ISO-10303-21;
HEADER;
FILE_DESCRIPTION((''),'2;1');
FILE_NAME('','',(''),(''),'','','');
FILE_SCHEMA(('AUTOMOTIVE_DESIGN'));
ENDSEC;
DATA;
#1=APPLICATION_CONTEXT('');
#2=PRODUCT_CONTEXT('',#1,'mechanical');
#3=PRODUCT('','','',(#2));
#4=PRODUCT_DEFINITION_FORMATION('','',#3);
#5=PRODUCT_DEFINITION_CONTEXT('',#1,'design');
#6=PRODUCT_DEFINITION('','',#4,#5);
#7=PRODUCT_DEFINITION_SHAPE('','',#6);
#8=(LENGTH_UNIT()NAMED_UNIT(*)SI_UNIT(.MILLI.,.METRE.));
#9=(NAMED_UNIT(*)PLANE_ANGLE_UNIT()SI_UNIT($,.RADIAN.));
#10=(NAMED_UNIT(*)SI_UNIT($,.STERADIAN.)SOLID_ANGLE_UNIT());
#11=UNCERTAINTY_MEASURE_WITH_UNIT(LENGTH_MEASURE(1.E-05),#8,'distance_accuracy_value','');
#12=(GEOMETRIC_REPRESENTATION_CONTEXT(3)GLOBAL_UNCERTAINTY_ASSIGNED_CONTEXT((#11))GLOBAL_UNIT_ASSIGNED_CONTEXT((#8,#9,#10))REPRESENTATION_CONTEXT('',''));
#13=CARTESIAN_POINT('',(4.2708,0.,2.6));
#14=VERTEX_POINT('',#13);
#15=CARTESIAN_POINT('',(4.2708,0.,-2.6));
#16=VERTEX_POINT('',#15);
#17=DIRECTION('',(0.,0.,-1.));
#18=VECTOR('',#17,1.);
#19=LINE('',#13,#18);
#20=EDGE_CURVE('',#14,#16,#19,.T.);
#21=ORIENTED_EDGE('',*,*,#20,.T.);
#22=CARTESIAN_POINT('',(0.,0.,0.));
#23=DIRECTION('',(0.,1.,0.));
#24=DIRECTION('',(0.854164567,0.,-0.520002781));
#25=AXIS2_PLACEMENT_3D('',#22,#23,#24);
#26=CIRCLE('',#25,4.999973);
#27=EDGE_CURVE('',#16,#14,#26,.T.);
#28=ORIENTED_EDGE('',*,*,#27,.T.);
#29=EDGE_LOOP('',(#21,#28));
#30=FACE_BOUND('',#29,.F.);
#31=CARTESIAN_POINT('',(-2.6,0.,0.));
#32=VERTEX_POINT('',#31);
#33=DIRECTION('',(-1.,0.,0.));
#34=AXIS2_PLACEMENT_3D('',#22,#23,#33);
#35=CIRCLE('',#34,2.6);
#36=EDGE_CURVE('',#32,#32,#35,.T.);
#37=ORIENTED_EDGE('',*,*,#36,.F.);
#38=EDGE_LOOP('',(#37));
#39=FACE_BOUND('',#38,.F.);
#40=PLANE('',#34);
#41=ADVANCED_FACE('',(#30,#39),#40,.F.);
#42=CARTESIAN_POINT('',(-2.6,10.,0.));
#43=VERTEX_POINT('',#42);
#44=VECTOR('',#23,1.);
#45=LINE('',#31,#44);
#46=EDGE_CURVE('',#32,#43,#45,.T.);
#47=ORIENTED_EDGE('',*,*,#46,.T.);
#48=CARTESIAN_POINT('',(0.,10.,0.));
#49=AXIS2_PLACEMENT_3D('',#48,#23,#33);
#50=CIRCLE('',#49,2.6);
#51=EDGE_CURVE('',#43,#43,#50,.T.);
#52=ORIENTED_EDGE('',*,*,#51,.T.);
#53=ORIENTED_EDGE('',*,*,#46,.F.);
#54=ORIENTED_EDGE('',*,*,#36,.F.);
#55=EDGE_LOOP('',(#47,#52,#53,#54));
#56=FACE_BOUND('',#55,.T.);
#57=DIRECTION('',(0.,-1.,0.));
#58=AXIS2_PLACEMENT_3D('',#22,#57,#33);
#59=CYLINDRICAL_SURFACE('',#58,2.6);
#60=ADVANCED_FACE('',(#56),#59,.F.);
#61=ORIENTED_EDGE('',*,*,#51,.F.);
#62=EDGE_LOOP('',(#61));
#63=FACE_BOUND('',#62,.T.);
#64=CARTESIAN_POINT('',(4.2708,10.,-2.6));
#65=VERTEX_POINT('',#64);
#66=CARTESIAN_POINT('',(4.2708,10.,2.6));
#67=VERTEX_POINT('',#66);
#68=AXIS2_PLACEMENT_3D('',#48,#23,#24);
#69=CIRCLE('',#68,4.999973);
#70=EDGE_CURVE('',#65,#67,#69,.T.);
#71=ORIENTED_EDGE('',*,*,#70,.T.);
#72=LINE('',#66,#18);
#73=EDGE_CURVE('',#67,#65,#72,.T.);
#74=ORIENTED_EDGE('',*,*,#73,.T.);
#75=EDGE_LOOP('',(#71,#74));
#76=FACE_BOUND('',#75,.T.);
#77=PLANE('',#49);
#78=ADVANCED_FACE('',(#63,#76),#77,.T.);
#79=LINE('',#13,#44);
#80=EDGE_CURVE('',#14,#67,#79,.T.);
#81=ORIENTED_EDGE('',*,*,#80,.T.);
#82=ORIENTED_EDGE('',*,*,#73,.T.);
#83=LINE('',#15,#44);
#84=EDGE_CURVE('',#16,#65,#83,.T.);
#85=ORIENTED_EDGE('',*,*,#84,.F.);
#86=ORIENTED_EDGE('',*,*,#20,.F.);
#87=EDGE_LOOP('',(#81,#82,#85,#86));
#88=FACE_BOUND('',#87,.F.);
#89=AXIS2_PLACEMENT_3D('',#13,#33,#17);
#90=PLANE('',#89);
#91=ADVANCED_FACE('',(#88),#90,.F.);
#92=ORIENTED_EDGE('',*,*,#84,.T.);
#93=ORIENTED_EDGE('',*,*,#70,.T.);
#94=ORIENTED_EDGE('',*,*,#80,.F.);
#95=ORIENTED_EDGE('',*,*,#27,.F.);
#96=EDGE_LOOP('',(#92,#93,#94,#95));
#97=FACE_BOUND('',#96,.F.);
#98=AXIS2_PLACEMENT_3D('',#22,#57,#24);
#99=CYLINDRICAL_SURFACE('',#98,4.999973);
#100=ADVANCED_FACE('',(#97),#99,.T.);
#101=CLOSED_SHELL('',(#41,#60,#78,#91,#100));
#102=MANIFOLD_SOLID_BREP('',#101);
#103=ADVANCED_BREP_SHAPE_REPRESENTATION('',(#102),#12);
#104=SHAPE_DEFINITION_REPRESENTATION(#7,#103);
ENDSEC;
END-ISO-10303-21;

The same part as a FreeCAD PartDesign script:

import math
import FreeCAD as App
import Part
import Sketcher
from FreeCAD import Vector

doc = App.newDocument("Part")
params = doc.addObject("Spreadsheet::Sheet", "Params")
for row, (alias, value) in enumerate([
    ("sketch1_radius", "5 mm"),
    ("sketch1_diameter", "5.2 mm"),
    ("sketch1_height", "5.2 mm"),
    ("pad1_length", "10 mm"),
], start=1):
    params.set(f"A{row}", alias)
    params.set(f"B{row}", "=" + value)
    params.setAlias(f"B{row}", alias)

body = doc.addObject("PartDesign::Body", "Body")

sketch1 = body.newObject("Sketcher::SketchObject", "Sketch")
sketch1.AttachmentSupport = (doc.getObject("XZ_Plane"), [""])
sketch1.MapMode = "FlatFace"
sketch1.addGeometry([
    Part.LineSegment(Vector(4.3, 2.6, 0), Vector(4.3, -2.6, 0)),
    Part.ArcOfCircle(Part.Circle(Vector(0, 0, 0), Vector(0, 0, 1), 5), math.radians(31), math.radians(329)),
    Part.Circle(Vector(0, 0, 0), Vector(0, 0, 1), 2.6),
], False)
sketch1.addConstraint([
    Sketcher.Constraint("Coincident", 0, 1, 1, 1),
    Sketcher.Constraint("Coincident", 1, 2, 0, 2),
    Sketcher.Constraint("Vertical", 0),
    Sketcher.Constraint("Coincident", 1, 3, -1, 1),
    Sketcher.Constraint("Coincident", 2, 3, -1, 1),
    Sketcher.Constraint("Radius", 1, 5.0),
    Sketcher.Constraint("Diameter", 2, 5.2),
    Sketcher.Constraint("DistanceY", 0, 2, 0, 1, 5.2),
])
sketch1.setExpression("Constraints[5]", "Params.sketch1_radius")
sketch1.setExpression("Constraints[6]", "Params.sketch1_diameter")
sketch1.setExpression("Constraints[7]", "Params.sketch1_height")
pad1 = body.newObject("PartDesign::Pad", "Pad")
pad1.Profile = sketch1
pad1.setExpression("Length", "Params.pad1_length")
pad1.Reversed = True

doc.recompute()
